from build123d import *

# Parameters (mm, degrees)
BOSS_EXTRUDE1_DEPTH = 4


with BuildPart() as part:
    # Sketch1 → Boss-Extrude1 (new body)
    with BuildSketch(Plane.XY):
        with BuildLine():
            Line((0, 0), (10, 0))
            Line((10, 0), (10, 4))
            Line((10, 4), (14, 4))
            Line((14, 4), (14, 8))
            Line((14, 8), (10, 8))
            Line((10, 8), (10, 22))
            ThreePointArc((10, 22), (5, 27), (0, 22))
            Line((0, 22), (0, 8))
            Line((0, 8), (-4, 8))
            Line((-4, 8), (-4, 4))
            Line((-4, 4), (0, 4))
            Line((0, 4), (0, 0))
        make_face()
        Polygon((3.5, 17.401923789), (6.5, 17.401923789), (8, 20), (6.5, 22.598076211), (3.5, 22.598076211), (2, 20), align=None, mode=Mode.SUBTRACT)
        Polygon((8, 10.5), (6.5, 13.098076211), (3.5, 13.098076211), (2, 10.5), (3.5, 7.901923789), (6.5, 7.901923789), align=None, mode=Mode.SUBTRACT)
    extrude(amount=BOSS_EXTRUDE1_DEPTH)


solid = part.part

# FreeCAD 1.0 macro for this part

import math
import FreeCAD as App
import Part
import Sketcher
from FreeCAD import Vector
Q = App.Units.Quantity


def add_polygon(sketch, points):
    """Adds a closed chain of lines whose ends are joined by coincident constraints."""
    first, n = sketch.GeometryCount, len(points)
    for a, b in zip(points, points[1:] + points[:1]):
        sketch.addGeometry(Part.LineSegment(App.Vector(*a, 0), App.Vector(*b, 0)), False)
    for i in range(n):
        sketch.addConstraint(Sketcher.Constraint("Coincident", first + i, 2, first + (i + 1) % n, 1))

doc = App.newDocument("Part")
params = doc.addObject("Spreadsheet::Sheet", "Params")
for row, (alias, value) in enumerate([
    ("sketch1_radius", "5 mm"),
    ("sketch1_width", "4 mm"),
    ("sketch1_width2", "3 mm"),
    ("sketch1_height", "14 mm"),
    ("sketch1_length", "3 mm"),
    ("pad1_length", "4 mm"),
], start=1):
    params.set(f"A{row}", alias)
    params.set(f"B{row}", "=" + value)
    params.setAlias(f"B{row}", alias)

body = doc.addObject("PartDesign::Body", "Body")

# Sketch on XY plane
sketch1 = body.newObject("Sketcher::SketchObject", "Sketch")
sketch1.AttachmentSupport = (doc.getObject("XY_Plane"), [""])
sketch1.MapMode = "FlatFace"
sketch1.addGeometry(Part.LineSegment(Vector(0, 0, 0), Vector(10, 0, 0)), False)  # 0
sketch1.addGeometry(Part.LineSegment(Vector(10, 0, 0), Vector(10, 4, 0)), False)  # 1
sketch1.addGeometry(Part.LineSegment(Vector(10, 4, 0), Vector(14, 4, 0)), False)  # 2
sketch1.addGeometry(Part.LineSegment(Vector(14, 4, 0), Vector(14, 8, 0)), False)  # 3
sketch1.addGeometry(Part.LineSegment(Vector(14, 8, 0), Vector(10, 8, 0)), False)  # 4
sketch1.addGeometry(Part.LineSegment(Vector(10, 8, 0), Vector(10, 22, 0)), False)  # 5
sketch1.addGeometry(Part.ArcOfCircle(Part.Circle(Vector(5, 22, 0), Vector(0, 0, 1), 5), math.radians(0), math.radians(180)), False)  # 6
sketch1.addGeometry(Part.LineSegment(Vector(0, 22, 0), Vector(0, 8, 0)), False)  # 7
sketch1.addGeometry(Part.LineSegment(Vector(0, 8, 0), Vector(-4, 8, 0)), False)  # 8
sketch1.addGeometry(Part.LineSegment(Vector(-4, 8, 0), Vector(-4, 4, 0)), False)  # 9
sketch1.addGeometry(Part.LineSegment(Vector(-4, 4, 0), Vector(0, 4, 0)), False)  # 10
sketch1.addGeometry(Part.LineSegment(Vector(0, 4, 0), Vector(0, 0, 0)), False)  # 11
add_polygon(sketch1, [(6.5, 13.1), (8, 10.5), (6.5, 7.9), (3.5, 7.9), (2, 10.5), (3.5, 13.1)])  # lines 12-17
add_polygon(sketch1, [(6.5, 17.4), (3.5, 17.4), (2, 20), (3.5, 22.6), (6.5, 22.6), (8, 20)])  # lines 18-23
sketch1.addConstraint([
    Sketcher.Constraint("Coincident", 0, 2, 1, 1),
    Sketcher.Constraint("Coincident", 1, 2, 2, 1),
    Sketcher.Constraint("Coincident", 2, 2, 3, 1),
    Sketcher.Constraint("Coincident", 3, 2, 4, 1),
    Sketcher.Constraint("Coincident", 4, 2, 5, 1),
    Sketcher.Constraint("Tangent", 5, 2, 6, 1),
    Sketcher.Constraint("Tangent", 6, 2, 7, 1),
    Sketcher.Constraint("Coincident", 7, 2, 8, 1),
    Sketcher.Constraint("Coincident", 8, 2, 9, 1),
    Sketcher.Constraint("Coincident", 9, 2, 10, 1),
    Sketcher.Constraint("Coincident", 10, 2, 11, 1),
    Sketcher.Constraint("Coincident", 11, 2, 0, 1),
    Sketcher.Constraint("Horizontal", 0),
    Sketcher.Constraint("Vertical", 1),
    Sketcher.Constraint("Horizontal", 2),
    Sketcher.Constraint("Vertical", 3),
    Sketcher.Constraint("Horizontal", 4),
    Sketcher.Constraint("Vertical", 5),
    Sketcher.Constraint("Vertical", 7),
    Sketcher.Constraint("Horizontal", 8),
    Sketcher.Constraint("Vertical", 9),
    Sketcher.Constraint("Horizontal", 10),
    Sketcher.Constraint("Vertical", 11),
    Sketcher.Constraint("Horizontal", 14),
    Sketcher.Constraint("Horizontal", 17),
    Sketcher.Constraint("Horizontal", 18),
    Sketcher.Constraint("Horizontal", 21),
    Sketcher.Constraint("Coincident", 11, 2, -1, 1),
    Sketcher.Constraint("PointOnObject", 6, 2, -2),
    Sketcher.Constraint("Parallel", 12, 15),
    Sketcher.Constraint("Parallel", 13, 16),
    Sketcher.Constraint("Parallel", 15, 19),
    Sketcher.Constraint("Parallel", 16, 20),
    Sketcher.Constraint("Parallel", 19, 22),
    Sketcher.Constraint("Parallel", 20, 23),
    Sketcher.Constraint("Horizontal", 4, 2, 7, 2),
    Sketcher.Constraint("Horizontal", 2, 2, 9, 2),
    Sketcher.Constraint("Horizontal", 12, 2, 15, 2),
    Sketcher.Constraint("Horizontal", 19, 2, 22, 2),
    Sketcher.Constraint("Vertical", 1, 2, 4, 2),
    Sketcher.Constraint("Vertical", 14, 2, 16, 2),
    Sketcher.Constraint("Vertical", 13, 2, 17, 2),
    Sketcher.Constraint("Vertical", 16, 2, 18, 2),
    Sketcher.Constraint("Vertical", 15, 2, 19, 2),
    Sketcher.Constraint("Vertical", 18, 2, 20, 2),
    Sketcher.Constraint("Vertical", 17, 2, 21, 2),
    Sketcher.Constraint("Equal", 4, 8),
    Sketcher.Constraint("Equal", 10, 1),
    Sketcher.Constraint("Equal", 1, 3),
    Sketcher.Constraint("Radius", 6, 5.0),
    Sketcher.Constraint("DistanceX", 2, 1, 2, 2, 4.0),
    Sketcher.Constraint("DistanceX", 14, 2, 14, 1, 3.0),
    Sketcher.Constraint("DistanceY", 5, 1, 5, 2, 14.0),
    Sketcher.Constraint("Angle", 12, Q("-60 deg")),
    Sketcher.Constraint("Distance", 12, 3.0),
    Sketcher.Constraint("DistanceX", -1, 1, 12, 2, 8.0),
    Sketcher.Constraint("DistanceY", -1, 1, 19, 2, 20.0),
    Sketcher.Constraint("DistanceY", -1, 1, 12, 2, 10.5),
])
sketch1.setExpression("Constraints[61]", "Params.sketch1_radius")
sketch1.setExpression("Constraints[62]", "Params.sketch1_width")
sketch1.setExpression("Constraints[63]", "Params.sketch1_width2")
sketch1.setExpression("Constraints[64]", "Params.sketch1_height")
sketch1.setExpression("Constraints[66]", "Params.sketch1_length")
pad1 = body.newObject("PartDesign::Pad", "Pad")
pad1.Profile = sketch1
pad1.setExpression("Length", "Params.pad1_length")

doc.recompute()
